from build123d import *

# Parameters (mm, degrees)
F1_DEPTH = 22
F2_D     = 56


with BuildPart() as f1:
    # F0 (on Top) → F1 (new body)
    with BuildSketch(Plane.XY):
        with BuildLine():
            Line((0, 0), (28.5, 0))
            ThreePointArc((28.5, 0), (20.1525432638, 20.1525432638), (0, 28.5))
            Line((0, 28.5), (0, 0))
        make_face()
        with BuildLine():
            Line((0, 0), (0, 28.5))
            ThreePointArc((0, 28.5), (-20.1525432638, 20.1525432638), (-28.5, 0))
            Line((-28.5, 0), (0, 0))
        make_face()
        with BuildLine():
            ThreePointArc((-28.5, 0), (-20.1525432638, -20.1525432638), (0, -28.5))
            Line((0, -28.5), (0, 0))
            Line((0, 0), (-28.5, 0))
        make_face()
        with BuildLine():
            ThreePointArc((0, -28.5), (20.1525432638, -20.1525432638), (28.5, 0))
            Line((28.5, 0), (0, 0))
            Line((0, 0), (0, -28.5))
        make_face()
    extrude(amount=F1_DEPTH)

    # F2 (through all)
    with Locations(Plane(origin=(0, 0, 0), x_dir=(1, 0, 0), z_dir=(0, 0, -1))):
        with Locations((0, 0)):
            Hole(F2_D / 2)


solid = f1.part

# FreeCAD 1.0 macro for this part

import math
import FreeCAD as App
import Part
import Sketcher
from FreeCAD import Vector

doc = App.newDocument("Part")
body = doc.addObject("PartDesign::Body", "Body")

sketch1 = body.newObject("Sketcher::SketchObject", "Sketch")
sketch1.AttachmentSupport = (doc.getObject("XY_Plane"), [""])
sketch1.MapMode = "FlatFace"
sketch1.addGeometry([
    Part.ArcOfCircle(Part.Circle(Vector(0, 0, 0), Vector(0, 0, 1), 28), math.radians(0), math.radians(90)),
    Part.ArcOfCircle(Part.Circle(Vector(0, 0, 0), Vector(0, 0, 1), 28), math.radians(90), math.radians(180)),
    Part.ArcOfCircle(Part.Circle(Vector(0, 0, 0), Vector(0, 0, 1), 28), math.radians(180), math.radians(270)),
    Part.ArcOfCircle(Part.Circle(Vector(0, 0, 0), Vector(0, 0, 1), 28), math.radians(-90), math.radians(0)),
], False)
sketch1.addConstraint([
    Sketcher.Constraint("Tangent", 0, 2, 1, 1),
    Sketcher.Constraint("Tangent", 1, 2, 2, 1),
    Sketcher.Constraint("Tangent", 2, 2, 3, 1),
    Sketcher.Constraint("Tangent", 3, 2, 0, 1),
    Sketcher.Constraint("Coincident", 0, 3, -1, 1),
    Sketcher.Constraint("Equal", 0, 1),
    Sketcher.Constraint("PointOnObject", 0, 2, -2),
    Sketcher.Constraint("PointOnObject", 1, 2, -1),
    Sketcher.Constraint("PointOnObject", 2, 2, -2),
    Sketcher.Constraint("PointOnObject", 3, 2, -1),
    Sketcher.Constraint("Radius", 0, 28.5),
])
pad1 = body.newObject("PartDesign::Pad", "Pad")
pad1.Profile = sketch1
pad1.Length = 22

sketch2 = body.newObject("Sketcher::SketchObject", "Sketch001")
sketch2.AttachmentSupport = (doc.getObject("XY_Plane"), [""])
sketch2.MapMode = "FlatFace"
sketch2.addGeometry(Part.Circle(Vector(0, 0, 0), Vector(0, 0, 1), 28), False)
sketch2.addConstraint([
    Sketcher.Constraint("Coincident", 0, 3, -1, 1),
    Sketcher.Constraint("Diameter", 0, 56.0),
])
doc.recompute()
hole = body.newObject("PartDesign::Hole", "Hole")
hole.Profile = sketch2
hole.ThreadType = "None"
hole.Diameter = 56
hole.DepthType = "ThroughAll"
hole.Reversed = True

doc.recompute()
